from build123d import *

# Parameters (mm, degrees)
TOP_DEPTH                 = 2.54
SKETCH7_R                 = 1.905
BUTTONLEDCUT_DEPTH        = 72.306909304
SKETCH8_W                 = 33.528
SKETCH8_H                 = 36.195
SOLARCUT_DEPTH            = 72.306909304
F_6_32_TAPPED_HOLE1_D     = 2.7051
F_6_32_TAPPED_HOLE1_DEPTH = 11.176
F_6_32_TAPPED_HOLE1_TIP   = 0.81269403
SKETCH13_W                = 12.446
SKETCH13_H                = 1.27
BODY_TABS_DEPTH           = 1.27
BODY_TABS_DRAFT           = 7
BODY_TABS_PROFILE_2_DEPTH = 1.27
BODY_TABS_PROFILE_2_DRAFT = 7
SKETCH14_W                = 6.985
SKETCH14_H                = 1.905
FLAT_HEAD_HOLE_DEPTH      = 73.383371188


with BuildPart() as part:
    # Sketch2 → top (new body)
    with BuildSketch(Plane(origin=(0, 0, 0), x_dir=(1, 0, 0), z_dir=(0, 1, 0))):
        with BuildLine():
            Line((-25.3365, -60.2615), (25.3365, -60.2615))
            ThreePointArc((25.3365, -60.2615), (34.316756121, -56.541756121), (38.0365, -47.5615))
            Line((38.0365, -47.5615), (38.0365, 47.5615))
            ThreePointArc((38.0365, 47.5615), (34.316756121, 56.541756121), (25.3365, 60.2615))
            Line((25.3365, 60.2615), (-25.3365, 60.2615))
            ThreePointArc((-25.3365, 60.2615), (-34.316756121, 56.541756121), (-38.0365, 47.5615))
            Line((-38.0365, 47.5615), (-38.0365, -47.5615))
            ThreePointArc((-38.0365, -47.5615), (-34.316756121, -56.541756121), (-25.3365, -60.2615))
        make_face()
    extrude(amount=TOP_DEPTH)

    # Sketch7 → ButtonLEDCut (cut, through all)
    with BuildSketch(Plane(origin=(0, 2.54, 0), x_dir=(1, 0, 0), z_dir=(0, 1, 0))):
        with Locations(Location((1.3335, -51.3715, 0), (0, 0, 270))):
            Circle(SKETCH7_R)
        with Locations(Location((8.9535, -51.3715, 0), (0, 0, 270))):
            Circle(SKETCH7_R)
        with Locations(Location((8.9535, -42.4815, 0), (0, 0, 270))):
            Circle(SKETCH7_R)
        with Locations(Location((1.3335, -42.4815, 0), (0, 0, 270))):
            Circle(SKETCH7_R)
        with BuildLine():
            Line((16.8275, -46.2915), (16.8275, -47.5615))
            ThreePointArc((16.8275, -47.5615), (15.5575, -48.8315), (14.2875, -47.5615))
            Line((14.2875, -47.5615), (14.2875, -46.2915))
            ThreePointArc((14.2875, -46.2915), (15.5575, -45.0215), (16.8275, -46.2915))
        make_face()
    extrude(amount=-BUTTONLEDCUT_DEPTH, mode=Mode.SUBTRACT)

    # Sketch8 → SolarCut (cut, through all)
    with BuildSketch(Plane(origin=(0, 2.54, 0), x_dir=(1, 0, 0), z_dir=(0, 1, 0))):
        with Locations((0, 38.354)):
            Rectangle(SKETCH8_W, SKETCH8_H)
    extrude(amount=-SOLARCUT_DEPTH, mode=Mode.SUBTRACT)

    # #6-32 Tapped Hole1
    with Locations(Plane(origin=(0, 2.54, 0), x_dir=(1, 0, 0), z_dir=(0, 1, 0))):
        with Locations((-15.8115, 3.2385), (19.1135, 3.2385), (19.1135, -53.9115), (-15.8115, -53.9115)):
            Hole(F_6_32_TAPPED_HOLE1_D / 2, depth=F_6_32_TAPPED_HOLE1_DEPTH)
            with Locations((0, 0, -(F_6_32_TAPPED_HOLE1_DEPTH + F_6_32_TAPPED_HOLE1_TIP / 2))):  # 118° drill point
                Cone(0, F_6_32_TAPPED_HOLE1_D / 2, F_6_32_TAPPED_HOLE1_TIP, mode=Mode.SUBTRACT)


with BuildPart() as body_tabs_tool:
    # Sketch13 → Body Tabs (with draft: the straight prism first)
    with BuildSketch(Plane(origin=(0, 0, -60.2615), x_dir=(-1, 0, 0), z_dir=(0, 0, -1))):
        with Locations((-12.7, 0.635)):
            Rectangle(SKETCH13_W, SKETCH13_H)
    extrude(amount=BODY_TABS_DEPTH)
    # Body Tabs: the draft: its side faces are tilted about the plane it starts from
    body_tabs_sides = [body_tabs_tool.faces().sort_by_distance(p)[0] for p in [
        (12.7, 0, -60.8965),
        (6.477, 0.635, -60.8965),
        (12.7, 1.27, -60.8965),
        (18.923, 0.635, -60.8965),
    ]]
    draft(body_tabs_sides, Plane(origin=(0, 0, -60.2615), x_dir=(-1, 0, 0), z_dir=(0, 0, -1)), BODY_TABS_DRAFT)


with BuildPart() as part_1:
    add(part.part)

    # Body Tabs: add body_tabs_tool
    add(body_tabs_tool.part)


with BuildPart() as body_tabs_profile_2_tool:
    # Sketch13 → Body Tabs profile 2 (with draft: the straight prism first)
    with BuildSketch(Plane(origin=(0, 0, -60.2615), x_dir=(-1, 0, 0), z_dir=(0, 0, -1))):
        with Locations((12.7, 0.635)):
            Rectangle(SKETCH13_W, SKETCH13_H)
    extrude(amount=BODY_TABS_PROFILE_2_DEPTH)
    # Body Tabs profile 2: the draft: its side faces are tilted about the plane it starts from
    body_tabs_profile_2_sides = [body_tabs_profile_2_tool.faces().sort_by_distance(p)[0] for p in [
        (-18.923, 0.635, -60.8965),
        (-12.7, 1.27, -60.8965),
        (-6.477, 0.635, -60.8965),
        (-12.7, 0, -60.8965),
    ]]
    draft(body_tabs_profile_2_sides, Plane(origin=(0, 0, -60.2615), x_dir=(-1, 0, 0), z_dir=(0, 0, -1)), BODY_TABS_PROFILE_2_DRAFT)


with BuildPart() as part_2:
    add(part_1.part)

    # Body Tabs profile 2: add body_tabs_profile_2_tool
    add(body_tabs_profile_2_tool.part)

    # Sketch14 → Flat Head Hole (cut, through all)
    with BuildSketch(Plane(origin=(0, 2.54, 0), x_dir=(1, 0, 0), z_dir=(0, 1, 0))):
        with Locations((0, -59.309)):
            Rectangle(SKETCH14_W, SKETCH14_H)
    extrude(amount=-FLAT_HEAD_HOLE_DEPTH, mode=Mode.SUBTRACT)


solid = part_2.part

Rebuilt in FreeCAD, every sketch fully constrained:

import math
import FreeCAD as App
import Part
import Sketcher
from FreeCAD import Vector
Q = App.Units.Quantity


def faces_at(feature, points):
    """Names of the faces that lie closest to the given points."""
    faces = feature.Shape.Faces
    near = lambda p: min(range(len(faces)), key=lambda i: faces[i].distToShape(Part.Vertex(*p))[0])
    return sorted({f"Face{near(p) + 1}" for p in points})

doc = App.newDocument("Part")
params = doc.addObject("Spreadsheet::Sheet", "Params")
for row, (alias, value) in enumerate([
    ("sketch1_radius", "0.5 in"),
    ("sketch1_width", "1.995 in"),
    ("sketch1_height", "3.745 in"),
    ("pad1_length", "0.1 in"),
    ("sketch2_diameter", "0.15 in"),
    ("sketch2_radius", "0.05 in"),
    ("sketch2_height", "0.05 in"),
    ("sketch3_width", "1.32 in"),
    ("sketch3_height", "1.425 in"),
    ("hole_diameter", "0.1065 in"),
    ("hole_depth", "0.44 in"),
    ("sketch5_width", "0.49 in"),
    ("sketch5_height", "0.05 in"),
    ("pad2_length", "0.05 in"),
    ("draft_angle", "7 deg"),
    ("sketch6_width", "0.49 in"),
    ("sketch6_height", "0.05 in"),
    ("pad3_length", "0.05 in"),
    ("draft2_angle", "7 deg"),
    ("sketch7_width", "0.275 in"),
    ("sketch7_height", "0.075 in"),
], start=1):
    params.set(f"A{row}", alias)
    params.set(f"B{row}", "=" + value)
    params.setAlias(f"B{row}", alias)

body = doc.addObject("PartDesign::Body", "Body")

# Sketch on XZ plane
sketch1 = body.newObject("Sketcher::SketchObject", "Sketch")
sketch1.AttachmentSupport = (doc.getObject("XZ_Plane"), [""])
sketch1.MapMode = "FlatFace"
sketch1.addGeometry([
    Part.LineSegment(Vector(-25, 60, 0), Vector(25, 60, 0)),  # 0
    Part.ArcOfCircle(Part.Circle(Vector(25, 48, 0), Vector(0, 0, 1), 13), math.radians(0), math.radians(90)),  # 1
    Part.LineSegment(Vector(38, 48, 0), Vector(38, -48, 0)),  # 2
    Part.ArcOfCircle(Part.Circle(Vector(25, -48, 0), Vector(0, 0, 1), 13), math.radians(-90), math.radians(0)),  # 3
    Part.LineSegment(Vector(25, -60, 0), Vector(-25, -60, 0)),  # 4
    Part.ArcOfCircle(Part.Circle(Vector(-25, -48, 0), Vector(0, 0, 1), 13), math.radians(180), math.radians(270)),  # 5
    Part.LineSegment(Vector(-38, -48, 0), Vector(-38, 48, 0)),  # 6
    Part.ArcOfCircle(Part.Circle(Vector(-25, 48, 0), Vector(0, 0, 1), 13), math.radians(90), math.radians(180)),  # 7
], False)
sketch1.addConstraint([
    Sketcher.Constraint("Tangent", 0, 2, 1, 2),
    Sketcher.Constraint("Tangent", 1, 1, 2, 1),
    Sketcher.Constraint("Tangent", 2, 2, 3, 2),
    Sketcher.Constraint("Tangent", 3, 1, 4, 1),
    Sketcher.Constraint("Tangent", 4, 2, 5, 2),
    Sketcher.Constraint("Tangent", 5, 1, 6, 1),
    Sketcher.Constraint("Tangent", 6, 2, 7, 2),
    Sketcher.Constraint("Tangent", 7, 1, 0, 1),
    Sketcher.Constraint("Horizontal", 0),
    Sketcher.Constraint("Vertical", 2),
    Sketcher.Constraint("Horizontal", 4),
    Sketcher.Constraint("Vertical", 6),
    Sketcher.Constraint("Equal", 1, 3),
    Sketcher.Constraint("Equal", 3, 5),
    Sketcher.Constraint("Equal", 5, 7),
    Sketcher.Constraint("Symmetric", 1, 3, 5, 3, -1, 1),
    Sketcher.Constraint("Radius", 1, Q("0.5 in")),
    Sketcher.Constraint("DistanceX", 0, 1, 0, 2, Q("1.995 in")),
    Sketcher.Constraint("DistanceY", 2, 2, 2, 1, Q("3.745 in")),
])
sketch1.setExpression("Constraints[16]", "Params.sketch1_radius")
sketch1.setExpression("Constraints[17]", "Params.sketch1_width")
sketch1.setExpression("Constraints[18]", "Params.sketch1_height")
pad1 = body.newObject("PartDesign::Pad", "Pad")
pad1.Profile = sketch1
pad1.setExpression("Length", "Params.pad1_length")
pad1.Reversed = True

# Sketch on XZ plane
sketch2 = body.newObject("Sketcher::SketchObject", "Sketch001")
sketch2.AttachmentSupport = (doc.getObject("XZ_Plane"), [""])
sketch2.MapMode = "FlatFace"
sketch2.AttachmentOffset = App.Placement(Vector(0, 0, -0.1 * 25.4), App.Rotation())
sketch2.addGeometry([
    Part.Circle(Vector(1.3, 51.4, 0), Vector(0, 0, 1), 1.9),  # 0
    Part.Circle(Vector(9, 51.4, 0), Vector(0, 0, 1), 1.9),  # 1
    Part.Circle(Vector(9, 42.5, 0), Vector(0, 0, 1), 1.9),  # 2
    Part.Circle(Vector(1.3, 42.5, 0), Vector(0, 0, 1), 1.9),  # 3
    Part.LineSegment(Vector(16.8, 47.6, 0), Vector(16.8, 46.3, 0)),  # 4
    Part.ArcOfCircle(Part.Circle(Vector(15.6, 46.3, 0), Vector(0, 0, 1), 1.3), math.radians(180), math.radians(360)),  # 5
    Part.LineSegment(Vector(14.3, 46.3, 0), Vector(14.3, 47.6, 0)),  # 6
    Part.ArcOfCircle(Part.Circle(Vector(15.6, 47.6, 0), Vector(0, 0, 1), 1.3), math.radians(0), math.radians(180)),  # 7
], False)
sketch2.addConstraint([
    Sketcher.Constraint("Tangent", 4, 2, 5, 2),
    Sketcher.Constraint("Tangent", 5, 1, 6, 1),
    Sketcher.Constraint("Tangent", 6, 2, 7, 2),
    Sketcher.Constraint("Tangent", 7, 1, 4, 1),
    Sketcher.Constraint("Vertical", 4),
    Sketcher.Constraint("Vertical", 6),
    Sketcher.Constraint("Equal", 0, 1),
    Sketcher.Constraint("Equal", 1, 2),
    Sketcher.Constraint("Equal", 2, 3),
    Sketcher.Constraint("Horizontal", 0, 3, 1, 3),
    Sketcher.Constraint("Horizontal", 2, 3, 3, 3),
    Sketcher.Constraint("Vertical", 1, 3, 2, 3),
    Sketcher.Constraint("Vertical", 0, 3, 3, 3),
    Sketcher.Constraint("Diameter", 0, Q("0.15 in")),
    Sketcher.Constraint("Radius", 5, Q("0.05 in")),
    Sketcher.Constraint("DistanceY", 4, 2, 4, 1, Q("0.05 in")),
    Sketcher.Constraint("DistanceX", 0, 3, 1, 3, Q("0.3 in")),
    Sketcher.Constraint("DistanceY", 5, 3, 1, 3, Q("0.2 in")),
    Sketcher.Constraint("DistanceY", 2, 3, 7, 3, Q("0.2 in")),
    Sketcher.Constraint("DistanceX", 2, 3, 5, 3, Q("0.26 in")),
    Sketcher.Constraint("DistanceX", -1, 1, 5, 1, Q("0.5625 in")),
    Sketcher.Constraint("DistanceY", -1, 1, 0, 3, Q("2.0225 in")),
])
sketch2.setExpression("Constraints[13]", "Params.sketch2_diameter")
sketch2.setExpression("Constraints[14]", "Params.sketch2_radius")
sketch2.setExpression("Constraints[15]", "Params.sketch2_height")
pocket1 = body.newObject("PartDesign::Pocket", "Pocket")
pocket1.Profile = sketch2
pocket1.Type = "ThroughAll"
pocket1.Reversed = True

# Sketch on XZ plane
sketch3 = body.newObject("Sketcher::SketchObject", "Sketch002")
sketch3.AttachmentSupport = (doc.getObject("XZ_Plane"), [""])
sketch3.MapMode = "FlatFace"
sketch3.AttachmentOffset = App.Placement(Vector(0, 0, -0.1 * 25.4), App.Rotation())
sketch3.addGeometry([
    Part.LineSegment(Vector(-17, -56, 0), Vector(-17, -20, 0)),
    Part.LineSegment(Vector(-17, -20, 0), Vector(17, -20, 0)),
    Part.LineSegment(Vector(17, -20, 0), Vector(17, -56, 0)),
    Part.LineSegment(Vector(17, -56, 0), Vector(-17, -56, 0)),
], False)
sketch3.addConstraint([
    Sketcher.Constraint("Coincident", 0, 2, 1, 1),
    Sketcher.Constraint("Coincident", 1, 2, 2, 1),
    Sketcher.Constraint("Coincident", 2, 2, 3, 1),
    Sketcher.Constraint("Coincident", 3, 2, 0, 1),
    Sketcher.Constraint("Vertical", 0),
    Sketcher.Constraint("Horizontal", 1),
    Sketcher.Constraint("Vertical", 2),
    Sketcher.Constraint("Horizontal", 3),
    Sketcher.Constraint("DistanceX", 1, 1, 1, 2, Q("1.32 in")),
    Sketcher.Constraint("DistanceY", 0, 1, 0, 2, Q("1.425 in")),
    Sketcher.Constraint("DistanceX", 0, 2, -1, 1, Q("0.66 in")),
    Sketcher.Constraint("DistanceY", 0, 2, -1, 1, Q("0.7975 in")),
])
sketch3.setExpression("Constraints[8]", "Params.sketch3_width")
sketch3.setExpression("Constraints[9]", "Params.sketch3_height")
pocket2 = body.newObject("PartDesign::Pocket", "Pocket001")
pocket2.Profile = sketch3
pocket2.Type = "ThroughAll"
pocket2.Reversed = True

# Sketch on XZ plane
sketch4 = body.newObject("Sketcher::SketchObject", "Sketch003")
sketch4.AttachmentSupport = (doc.getObject("XZ_Plane"), [""])
sketch4.MapMode = "FlatFace"
sketch4.AttachmentOffset = App.Placement(Vector(0, 0, -0.1 * 25.4), App.Rotation())
sketch4.addGeometry([
    Part.Circle(Vector(-15.8, -3.2, 0), Vector(0, 0, 1), 1.4),
    Part.Circle(Vector(19.1, -3.2, 0), Vector(0, 0, 1), 1.4),
    Part.Circle(Vector(19.1, 53.9, 0), Vector(0, 0, 1), 1.4),
    Part.Circle(Vector(-15.8, 53.9, 0), Vector(0, 0, 1), 1.4),
], False)
sketch4.addConstraint([
    Sketcher.Constraint("Equal", 0, 1),
    Sketcher.Constraint("Equal", 1, 2),
    Sketcher.Constraint("Equal", 2, 3),
    Sketcher.Constraint("Horizontal", 0, 3, 1, 3),
    Sketcher.Constraint("Horizontal", 2, 3, 3, 3),
    Sketcher.Constraint("Vertical", 1, 3, 2, 3),
    Sketcher.Constraint("Vertical", 0, 3, 3, 3),
    Sketcher.Constraint("Diameter", 0, Q("0.1065 in")),
    Sketcher.Constraint("DistanceY", 1, 3, 2, 3, Q("2.25 in")),
    Sketcher.Constraint("DistanceX", 0, 3, 1, 3, Q("1.375 in")),
    Sketcher.Constraint("DistanceX", 0, 3, -1, 1, Q("0.6225 in")),
    Sketcher.Constraint("DistanceY", 0, 3, -1, 1, Q("0.1275 in")),
])
doc.recompute()
hole = body.newObject("PartDesign::Hole", "Hole")
hole.Profile = sketch4
hole.ThreadType = "None"
hole.setExpression("Diameter", "Params.hole_diameter")
hole.DepthType = "Dimension"
hole.setExpression("Depth", "Params.hole_depth")
hole.DrillPoint = "Angled"
hole.DrillPointAngle = 118
hole.Reversed = True
body2 = doc.addObject("PartDesign::Body", "Body001")

# Sketch on XY plane
sketch5 = body2.newObject("Sketcher::SketchObject", "Sketch004")
sketch5.AttachmentSupport = (doc.getObject("XY_Plane001"), [""])
sketch5.MapMode = "FlatFace"
sketch5.AttachmentOffset = App.Placement(Vector(0, 0, -2.3725 * 25.4), App.Rotation())
sketch5.addGeometry([
    Part.LineSegment(Vector(18.9, 1.3, 0), Vector(18.9, 0, 0)),
    Part.LineSegment(Vector(18.9, 0, 0), Vector(6.5, 0, 0)),
    Part.LineSegment(Vector(6.5, 0, 0), Vector(6.5, 1.3, 0)),
    Part.LineSegment(Vector(6.5, 1.3, 0), Vector(18.9, 1.3, 0)),
], False)
sketch5.addConstraint([
    Sketcher.Constraint("Coincident", 0, 2, 1, 1),
    Sketcher.Constraint("Coincident", 1, 2, 2, 1),
    Sketcher.Constraint("Coincident", 2, 2, 3, 1),
    Sketcher.Constraint("Coincident", 3, 2, 0, 1),
    Sketcher.Constraint("Vertical", 0),
    Sketcher.Constraint("Horizontal", 1),
    Sketcher.Constraint("Vertical", 2),
    Sketcher.Constraint("Horizontal", 3),
    Sketcher.Constraint("PointOnObject", 0, 2, -1),
    Sketcher.Constraint("DistanceX", 1, 2, 1, 1, Q("0.49 in")),
    Sketcher.Constraint("DistanceY", 0, 2, 0, 1, Q("0.05 in")),
    Sketcher.Constraint("DistanceX", -1, 1, 0, 2, Q("0.745 in")),
])
sketch5.setExpression("Constraints[9]", "Params.sketch5_width")
sketch5.setExpression("Constraints[10]", "Params.sketch5_height")
pad2 = body2.newObject("PartDesign::Pad", "Pad001")
pad2.Profile = sketch5
pad2.setExpression("Length", "Params.pad2_length")
pad2.Reversed = True
doc.recompute()

datumplane = body2.newObject("PartDesign::Plane", "DatumPlane")
datumplane.AttachmentSupport = (doc.getObject("XY_Plane001"), [""])
datumplane.MapMode = "FlatFace"
datumplane.AttachmentOffset = App.Placement(Vector(0, 0, -2.3725 * 25.4), App.Rotation())
draft = body2.newObject("PartDesign::Draft", "Draft")
draft.Base = (pad2, faces_at(pad2, [
    (12.7, 0, -60.897),
    (6.477, 0.635, -60.897),
    (12.7, 1.27, -60.897),
    (18.923, 0.635, -60.897),
]))
draft.NeutralPlane = (datumplane, [""])
draft.setExpression("Angle", "Params.draft_angle")
draft.Reversed = True
doc.recompute()

boolean = body.newObject("PartDesign::Boolean", "Boolean")
boolean.Type = "Fuse"
boolean.addObjects([body2])
body3 = doc.addObject("PartDesign::Body", "Body002")

# Sketch on XY plane
sketch6 = body3.newObject("Sketcher::SketchObject", "Sketch005")
sketch6.AttachmentSupport = (doc.getObject("XY_Plane002"), [""])
sketch6.MapMode = "FlatFace"
sketch6.AttachmentOffset = App.Placement(Vector(0, 0, -2.3725 * 25.4), App.Rotation())
sketch6.addGeometry([
    Part.LineSegment(Vector(-6.5, 1.3, 0), Vector(-6.5, 0, 0)),
    Part.LineSegment(Vector(-6.5, 0, 0), Vector(-18.9, 0, 0)),
    Part.LineSegment(Vector(-18.9, 0, 0), Vector(-18.9, 1.3, 0)),
    Part.LineSegment(Vector(-18.9, 1.3, 0), Vector(-6.5, 1.3, 0)),
], False)
sketch6.addConstraint([
    Sketcher.Constraint("Coincident", 0, 2, 1, 1),
    Sketcher.Constraint("Coincident", 1, 2, 2, 1),
    Sketcher.Constraint("Coincident", 2, 2, 3, 1),
    Sketcher.Constraint("Coincident", 3, 2, 0, 1),
    Sketcher.Constraint("Vertical", 0),
    Sketcher.Constraint("Horizontal", 1),
    Sketcher.Constraint("Vertical", 2),
    Sketcher.Constraint("Horizontal", 3),
    Sketcher.Constraint("PointOnObject", 0, 2, -1),
    Sketcher.Constraint("DistanceX", 1, 2, 1, 1, Q("0.49 in")),
    Sketcher.Constraint("DistanceY", 0, 2, 0, 1, Q("0.05 in")),
    Sketcher.Constraint("DistanceX", 0, 2, -1, 1, Q("0.255 in")),
])
sketch6.setExpression("Constraints[9]", "Params.sketch6_width")
sketch6.setExpression("Constraints[10]", "Params.sketch6_height")
pad3 = body3.newObject("PartDesign::Pad", "Pad002")
pad3.Profile = sketch6
pad3.setExpression("Length", "Params.pad3_length")
pad3.Reversed = True
doc.recompute()

datumplane2 = body3.newObject("PartDesign::Plane", "DatumPlane001")
datumplane2.AttachmentSupport = (doc.getObject("XY_Plane002"), [""])
datumplane2.MapMode = "FlatFace"
datumplane2.AttachmentOffset = App.Placement(Vector(0, 0, -2.3725 * 25.4), App.Rotation())
draft2 = body3.newObject("PartDesign::Draft", "Draft001")
draft2.Base = (pad3, faces_at(pad3, [
    (-18.923, 0.635, -60.897),
    (-12.7, 1.27, -60.897),
    (-6.477, 0.635, -60.897),
    (-12.7, 0, -60.897),
]))
draft2.NeutralPlane = (datumplane2, [""])
draft2.setExpression("Angle", "Params.draft2_angle")
draft2.Reversed = True
doc.recompute()

boolean2 = body.newObject("PartDesign::Boolean", "Boolean001")
boolean2.Type = "Fuse"
boolean2.addObjects([body3])

# Sketch on XZ plane
sketch7 = body.newObject("Sketcher::SketchObject", "Sketch006")
sketch7.AttachmentSupport = (doc.getObject("XZ_Plane"), [""])
sketch7.MapMode = "FlatFace"
sketch7.AttachmentOffset = App.Placement(Vector(0, 0, -0.1 * 25.4), App.Rotation())
sketch7.addGeometry([
    Part.LineSegment(Vector(-3.5, 58.4, 0), Vector(-3.5, 60.3, 0)),
    Part.LineSegment(Vector(-3.5, 60.3, 0), Vector(3.5, 60.3, 0)),
    Part.LineSegment(Vector(3.5, 60.3, 0), Vector(3.5, 58.4, 0)),
    Part.LineSegment(Vector(3.5, 58.4, 0), Vector(-3.5, 58.4, 0)),
], False)
sketch7.addConstraint([
    Sketcher.Constraint("Coincident", 0, 2, 1, 1),
    Sketcher.Constraint("Coincident", 1, 2, 2, 1),
    Sketcher.Constraint("Coincident", 2, 2, 3, 1),
    Sketcher.Constraint("Coincident", 3, 2, 0, 1),
    Sketcher.Constraint("Vertical", 0),
    Sketcher.Constraint("Horizontal", 1),
    Sketcher.Constraint("Vertical", 2),
    Sketcher.Constraint("Horizontal", 3),
    Sketcher.Constraint("DistanceX", 1, 1, 1, 2, Q("0.275 in")),
    Sketcher.Constraint("DistanceY", 0, 1, 0, 2, Q("0.075 in")),
    Sketcher.Constraint("DistanceX", 0, 2, -1, 1, Q("0.1375 in")),
    Sketcher.Constraint("DistanceY", -1, 1, 0, 2, Q("2.3725 in")),
])
sketch7.setExpression("Constraints[8]", "Params.sketch7_width")
sketch7.setExpression("Constraints[9]", "Params.sketch7_height")
pocket3 = body.newObject("PartDesign::Pocket", "Pocket002")
pocket3.Profile = sketch7
pocket3.Type = "ThroughAll"
pocket3.Reversed = True

doc.recompute()
